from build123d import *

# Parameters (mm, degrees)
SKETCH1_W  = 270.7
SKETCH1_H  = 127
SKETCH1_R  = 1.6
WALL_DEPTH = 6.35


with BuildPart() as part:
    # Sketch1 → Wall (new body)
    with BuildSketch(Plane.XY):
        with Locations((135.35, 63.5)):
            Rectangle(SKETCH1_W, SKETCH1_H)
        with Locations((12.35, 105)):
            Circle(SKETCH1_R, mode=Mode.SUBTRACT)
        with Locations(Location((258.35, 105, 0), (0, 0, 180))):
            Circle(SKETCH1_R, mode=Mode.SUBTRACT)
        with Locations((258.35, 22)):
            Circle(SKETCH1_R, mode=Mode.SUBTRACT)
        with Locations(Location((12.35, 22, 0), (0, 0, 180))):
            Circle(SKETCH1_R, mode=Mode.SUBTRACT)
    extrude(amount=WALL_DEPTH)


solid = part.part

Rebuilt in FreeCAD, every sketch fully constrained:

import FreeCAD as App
import Part
import Sketcher
from FreeCAD import Vector
Q = App.Units.Quantity


def add_polygon(sketch, points):
    """Adds a closed chain of lines whose ends are joined by coincident constraints."""
    first, n = sketch.GeometryCount, len(points)
    for a, b in zip(points, points[1:] + points[:1]):
        sketch.addGeometry(Part.LineSegment(App.Vector(*a, 0), App.Vector(*b, 0)), False)
    for i in range(n):
        sketch.addConstraint(Sketcher.Constraint("Coincident", first + i, 2, first + (i + 1) % n, 1))

doc = App.newDocument("Part")
body = doc.addObject("PartDesign::Body", "Body")

# Sketch on XY plane
sketch1 = body.newObject("Sketcher::SketchObject", "Sketch")
sketch1.AttachmentSupport = (doc.getObject("XY_Plane"), [""])
sketch1.MapMode = "FlatFace"
add_polygon(sketch1, [(0, 127), (0, 0), (270.7, 0), (270.7, 127)])  # lines 0-3
sketch1.addGeometry(Part.Circle(Vector(12.3, 22, 0), Vector(0, 0, 1), 1.6), False)  # 4
sketch1.addGeometry(Part.Circle(Vector(258.4, 22, 0), Vector(0, 0, 1), 1.6), False)  # 5
sketch1.addGeometry(Part.Circle(Vector(12.3, 105, 0), Vector(0, 0, 1), 1.6), False)  # 6
sketch1.addGeometry(Part.Circle(Vector(258.4, 105, 0), Vector(0, 0, 1), 1.6), False)  # 7
sketch1.addConstraint([
    Sketcher.Constraint("Vertical", 0),
    Sketcher.Constraint("Horizontal", 1),
    Sketcher.Constraint("Vertical", 2),
    Sketcher.Constraint("Horizontal", 3),
    Sketcher.Constraint("Coincident", 0, 2, -1, 1),
    Sketcher.Constraint("Equal", 4, 5),
    Sketcher.Constraint("Equal", 5, 6),
    Sketcher.Constraint("Equal", 6, 7),
    Sketcher.Constraint("Horizontal", 4, 3, 5, 3),
    Sketcher.Constraint("Horizontal", 6, 3, 7, 3),
    Sketcher.Constraint("Vertical", 4, 3, 6, 3),
    Sketcher.Constraint("Vertical", 5, 3, 7, 3),
    Sketcher.Constraint("Diameter", 4, Q("3.2 mm")),
    Sketcher.Constraint("DistanceY", 0, 2, 0, 1, Q("127 mm")),
    Sketcher.Constraint("DistanceX", 1, 1, 1, 2, Q("270.7 mm")),
    Sketcher.Constraint("DistanceY", -1, 1, 4, 3, Q("22 mm")),
    Sketcher.Constraint("DistanceY", -1, 1, 6, 3, Q("105 mm")),
    Sketcher.Constraint("DistanceX", 4, 3, 5, 3, Q("246 mm")),
    Sketcher.Constraint("DistanceX", -1, 1, 4, 3, Q("12.35 mm")),
])
pad1 = body.newObject("PartDesign::Pad", "Pad")
pad1.Profile = sketch1
pad1.Length = 6.35

doc.recompute()
